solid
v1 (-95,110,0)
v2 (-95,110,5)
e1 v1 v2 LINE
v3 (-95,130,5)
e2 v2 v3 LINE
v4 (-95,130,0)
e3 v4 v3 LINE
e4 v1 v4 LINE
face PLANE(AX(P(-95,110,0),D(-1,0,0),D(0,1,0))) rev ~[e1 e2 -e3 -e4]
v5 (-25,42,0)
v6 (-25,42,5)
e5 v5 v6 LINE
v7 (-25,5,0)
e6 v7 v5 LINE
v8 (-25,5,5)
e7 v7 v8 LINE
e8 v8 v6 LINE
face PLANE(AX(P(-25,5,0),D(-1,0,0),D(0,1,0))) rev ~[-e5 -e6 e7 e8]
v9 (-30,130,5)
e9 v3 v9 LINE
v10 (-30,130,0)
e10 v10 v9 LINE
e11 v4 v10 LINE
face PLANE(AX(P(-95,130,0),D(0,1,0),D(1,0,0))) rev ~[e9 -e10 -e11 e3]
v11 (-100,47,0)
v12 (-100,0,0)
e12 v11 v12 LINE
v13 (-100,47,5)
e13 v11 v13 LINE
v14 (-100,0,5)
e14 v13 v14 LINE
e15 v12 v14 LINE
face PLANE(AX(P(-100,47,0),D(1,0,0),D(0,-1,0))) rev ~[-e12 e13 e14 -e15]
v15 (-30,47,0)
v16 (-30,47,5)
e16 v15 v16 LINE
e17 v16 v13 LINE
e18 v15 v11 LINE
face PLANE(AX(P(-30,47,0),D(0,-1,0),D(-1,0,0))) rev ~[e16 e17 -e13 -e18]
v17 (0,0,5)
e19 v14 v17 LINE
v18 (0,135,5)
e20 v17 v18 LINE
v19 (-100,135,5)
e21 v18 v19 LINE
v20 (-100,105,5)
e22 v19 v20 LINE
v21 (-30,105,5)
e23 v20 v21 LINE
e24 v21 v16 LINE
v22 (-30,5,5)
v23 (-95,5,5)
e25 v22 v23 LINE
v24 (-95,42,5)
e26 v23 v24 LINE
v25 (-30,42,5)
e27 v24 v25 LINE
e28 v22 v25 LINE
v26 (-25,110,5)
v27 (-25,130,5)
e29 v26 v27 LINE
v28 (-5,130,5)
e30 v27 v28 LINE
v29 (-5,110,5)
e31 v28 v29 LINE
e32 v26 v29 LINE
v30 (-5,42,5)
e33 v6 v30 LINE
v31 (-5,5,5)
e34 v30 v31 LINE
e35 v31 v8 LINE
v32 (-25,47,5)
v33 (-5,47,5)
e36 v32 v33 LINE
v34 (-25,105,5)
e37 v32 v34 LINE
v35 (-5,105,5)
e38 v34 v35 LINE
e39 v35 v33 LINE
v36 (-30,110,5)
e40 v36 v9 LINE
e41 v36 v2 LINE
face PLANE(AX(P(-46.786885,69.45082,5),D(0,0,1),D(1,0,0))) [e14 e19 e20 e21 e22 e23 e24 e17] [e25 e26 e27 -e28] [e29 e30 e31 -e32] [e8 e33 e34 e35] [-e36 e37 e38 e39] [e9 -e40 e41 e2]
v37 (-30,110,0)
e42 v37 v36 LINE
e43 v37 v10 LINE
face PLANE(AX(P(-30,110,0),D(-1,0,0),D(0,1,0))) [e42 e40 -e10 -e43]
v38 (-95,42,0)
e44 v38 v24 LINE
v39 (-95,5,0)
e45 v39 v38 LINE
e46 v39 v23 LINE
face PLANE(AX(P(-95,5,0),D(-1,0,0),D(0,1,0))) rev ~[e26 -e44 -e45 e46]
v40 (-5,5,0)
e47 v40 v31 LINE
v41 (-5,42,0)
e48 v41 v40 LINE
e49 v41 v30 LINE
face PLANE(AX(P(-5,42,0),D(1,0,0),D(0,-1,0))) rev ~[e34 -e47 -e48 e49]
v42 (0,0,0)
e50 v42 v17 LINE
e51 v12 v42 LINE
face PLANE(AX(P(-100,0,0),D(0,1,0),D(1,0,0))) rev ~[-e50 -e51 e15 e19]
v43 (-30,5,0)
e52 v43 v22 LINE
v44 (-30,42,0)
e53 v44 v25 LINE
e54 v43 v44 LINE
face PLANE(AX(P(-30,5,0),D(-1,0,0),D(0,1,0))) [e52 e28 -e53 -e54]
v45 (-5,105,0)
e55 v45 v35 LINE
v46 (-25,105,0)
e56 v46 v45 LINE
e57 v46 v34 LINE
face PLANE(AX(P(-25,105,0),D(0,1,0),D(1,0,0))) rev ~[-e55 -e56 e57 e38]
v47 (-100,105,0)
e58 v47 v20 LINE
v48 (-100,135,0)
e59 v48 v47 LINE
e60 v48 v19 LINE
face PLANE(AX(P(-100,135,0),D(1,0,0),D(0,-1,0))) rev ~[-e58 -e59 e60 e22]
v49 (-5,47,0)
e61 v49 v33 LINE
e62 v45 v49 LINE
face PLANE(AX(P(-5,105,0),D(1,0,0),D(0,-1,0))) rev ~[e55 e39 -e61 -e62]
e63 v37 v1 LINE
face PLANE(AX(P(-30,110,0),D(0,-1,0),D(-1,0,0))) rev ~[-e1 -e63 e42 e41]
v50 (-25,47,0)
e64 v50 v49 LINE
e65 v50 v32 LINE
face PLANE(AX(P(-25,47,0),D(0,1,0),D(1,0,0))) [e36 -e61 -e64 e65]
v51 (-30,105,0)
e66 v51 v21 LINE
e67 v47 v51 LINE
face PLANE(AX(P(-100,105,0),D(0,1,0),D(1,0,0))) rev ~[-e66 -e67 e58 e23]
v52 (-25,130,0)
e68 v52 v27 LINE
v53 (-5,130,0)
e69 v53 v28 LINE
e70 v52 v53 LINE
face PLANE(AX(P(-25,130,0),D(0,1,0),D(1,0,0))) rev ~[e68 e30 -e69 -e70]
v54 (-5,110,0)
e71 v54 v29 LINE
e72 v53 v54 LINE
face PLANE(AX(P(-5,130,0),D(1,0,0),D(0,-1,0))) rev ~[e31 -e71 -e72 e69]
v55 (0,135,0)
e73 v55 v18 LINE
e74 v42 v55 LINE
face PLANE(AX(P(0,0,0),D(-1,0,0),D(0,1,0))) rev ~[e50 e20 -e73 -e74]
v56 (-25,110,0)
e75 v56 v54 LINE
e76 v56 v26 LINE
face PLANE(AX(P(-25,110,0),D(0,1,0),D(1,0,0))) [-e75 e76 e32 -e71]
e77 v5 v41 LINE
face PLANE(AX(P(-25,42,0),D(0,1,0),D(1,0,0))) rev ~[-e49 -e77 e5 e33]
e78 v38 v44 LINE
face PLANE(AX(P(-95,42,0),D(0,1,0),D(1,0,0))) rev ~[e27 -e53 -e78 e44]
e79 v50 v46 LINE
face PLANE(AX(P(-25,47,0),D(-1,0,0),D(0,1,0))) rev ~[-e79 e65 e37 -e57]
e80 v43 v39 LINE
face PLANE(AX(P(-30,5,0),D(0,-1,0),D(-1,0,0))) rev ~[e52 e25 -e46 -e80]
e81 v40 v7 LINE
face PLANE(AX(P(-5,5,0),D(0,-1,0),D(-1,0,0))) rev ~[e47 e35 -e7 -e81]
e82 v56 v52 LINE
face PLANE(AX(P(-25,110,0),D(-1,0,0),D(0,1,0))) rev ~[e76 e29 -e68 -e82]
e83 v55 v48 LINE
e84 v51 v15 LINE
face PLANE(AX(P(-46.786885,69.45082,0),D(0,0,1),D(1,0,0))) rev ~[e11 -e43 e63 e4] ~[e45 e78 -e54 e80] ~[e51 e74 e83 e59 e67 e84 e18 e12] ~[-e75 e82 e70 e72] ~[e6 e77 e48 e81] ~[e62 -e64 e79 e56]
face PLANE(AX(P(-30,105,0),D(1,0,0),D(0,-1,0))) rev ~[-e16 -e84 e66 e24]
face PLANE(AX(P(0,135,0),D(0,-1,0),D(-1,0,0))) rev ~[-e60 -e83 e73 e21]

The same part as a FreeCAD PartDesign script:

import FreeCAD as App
import Part
import Sketcher

doc = App.newDocument("Part")
params = doc.addObject("Spreadsheet::Sheet", "Params")
for row, (alias, value) in enumerate([
    ("sketch1_width", "100 mm"),
    ("sketch1_width2", "70 mm"),
    ("sketch1_width3", "65 mm"),
    ("sketch1_width4", "20 mm"),
    ("sketch1_height", "135 mm"),
    ("pad1_length", "5 mm"),
], start=1):
    params.set(f"A{row}", alias)
    params.set(f"B{row}", "=" + value)
    params.setAlias(f"B{row}", alias)

body = doc.addObject("PartDesign::Body", "Body")

# Sketch on XY plane
sketch1 = body.newObject("Sketcher::SketchObject", "Sketch")
sketch1.AttachmentSupport = (doc.getObject("XY_Plane"), [""])
sketch1.MapMode = "FlatFace"
sketch1.addGeometry([
    Part.LineSegment(App.Vector(-100, 0, 0), App.Vector(0, 0, 0)),  # 0
    Part.LineSegment(App.Vector(0, 0, 0), App.Vector(0, 135, 0)),  # 1
    Part.LineSegment(App.Vector(0, 135, 0), App.Vector(-100, 135, 0)),  # 2
    Part.LineSegment(App.Vector(-100, 135, 0), App.Vector(-100, 105, 0)),  # 3
    Part.LineSegment(App.Vector(-100, 105, 0), App.Vector(-30, 105, 0)),  # 4
    Part.LineSegment(App.Vector(-30, 105, 0), App.Vector(-30, 47, 0)),  # 5
    Part.LineSegment(App.Vector(-30, 47, 0), App.Vector(-100, 47, 0)),  # 6
    Part.LineSegment(App.Vector(-100, 47, 0), App.Vector(-100, 0, 0)),  # 7
    Part.LineSegment(App.Vector(-30, 110, 0), App.Vector(-95, 110, 0)),  # 8
    Part.LineSegment(App.Vector(-95, 110, 0), App.Vector(-95, 130, 0)),  # 9
    Part.LineSegment(App.Vector(-95, 130, 0), App.Vector(-30, 130, 0)),  # 10
    Part.LineSegment(App.Vector(-30, 130, 0), App.Vector(-30, 110, 0)),  # 11
    Part.LineSegment(App.Vector(-25, 130, 0), App.Vector(-5, 130, 0)),  # 12
    Part.LineSegment(App.Vector(-5, 130, 0), App.Vector(-5, 110, 0)),  # 13
    Part.LineSegment(App.Vector(-5, 110, 0), App.Vector(-25, 110, 0)),  # 14
    Part.LineSegment(App.Vector(-25, 110, 0), App.Vector(-25, 130, 0)),  # 15
    Part.LineSegment(App.Vector(-5, 105, 0), App.Vector(-5, 47, 0)),  # 16
    Part.LineSegment(App.Vector(-5, 47, 0), App.Vector(-25, 47, 0)),  # 17
    Part.LineSegment(App.Vector(-25, 47, 0), App.Vector(-25, 105, 0)),  # 18
    Part.LineSegment(App.Vector(-25, 105, 0), App.Vector(-5, 105, 0)),  # 19
    Part.LineSegment(App.Vector(-5, 42, 0), App.Vector(-5, 5, 0)),  # 20
    Part.LineSegment(App.Vector(-5, 5, 0), App.Vector(-25, 5, 0)),  # 21
    Part.LineSegment(App.Vector(-25, 5, 0), App.Vector(-25, 42, 0)),  # 22
    Part.LineSegment(App.Vector(-25, 42, 0), App.Vector(-5, 42, 0)),  # 23
    Part.LineSegment(App.Vector(-30, 5, 0), App.Vector(-95, 5, 0)),  # 24
    Part.LineSegment(App.Vector(-95, 5, 0), App.Vector(-95, 42, 0)),  # 25
    Part.LineSegment(App.Vector(-95, 42, 0), App.Vector(-30, 42, 0)),  # 26
    Part.LineSegment(App.Vector(-30, 42, 0), App.Vector(-30, 5, 0)),  # 27
], False)
sketch1.addConstraint([
    Sketcher.Constraint("Coincident", 0, 2, 1, 1),
    Sketcher.Constraint("Coincident", 1, 2, 2, 1),
    Sketcher.Constraint("Coincident", 2, 2, 3, 1),
    Sketcher.Constraint("Coincident", 3, 2, 4, 1),
    Sketcher.Constraint("Coincident", 4, 2, 5, 1),
    Sketcher.Constraint("Coincident", 5, 2, 6, 1),
    Sketcher.Constraint("Coincident", 6, 2, 7, 1),
    Sketcher.Constraint("Coincident", 7, 2, 0, 1),
    Sketcher.Constraint("Coincident", 8, 2, 9, 1),
    Sketcher.Constraint("Coincident", 9, 2, 10, 1),
    Sketcher.Constraint("Coincident", 10, 2, 11, 1),
    Sketcher.Constraint("Coincident", 11, 2, 8, 1),
    Sketcher.Constraint("Coincident", 12, 2, 13, 1),
    Sketcher.Constraint("Coincident", 13, 2, 14, 1),
    Sketcher.Constraint("Coincident", 14, 2, 15, 1),
    Sketcher.Constraint("Coincident", 15, 2, 12, 1),
    Sketcher.Constraint("Coincident", 16, 2, 17, 1),
    Sketcher.Constraint("Coincident", 17, 2, 18, 1),
    Sketcher.Constraint("Coincident", 18, 2, 19, 1),
    Sketcher.Constraint("Coincident", 19, 2, 16, 1),
    Sketcher.Constraint("Coincident", 20, 2, 21, 1),
    Sketcher.Constraint("Coincident", 21, 2, 22, 1),
    Sketcher.Constraint("Coincident", 22, 2, 23, 1),
    Sketcher.Constraint("Coincident", 23, 2, 20, 1),
    Sketcher.Constraint("Coincident", 24, 2, 25, 1),
    Sketcher.Constraint("Coincident", 25, 2, 26, 1),
    Sketcher.Constraint("Coincident", 26, 2, 27, 1),
    Sketcher.Constraint("Coincident", 27, 2, 24, 1),
    Sketcher.Constraint("Horizontal", 0),
    Sketcher.Constraint("Vertical", 1),
    Sketcher.Constraint("Horizontal", 2),
    Sketcher.Constraint("Vertical", 3),
    Sketcher.Constraint("Horizontal", 4),
    Sketcher.Constraint("Vertical", 5),
    Sketcher.Constraint("Horizontal", 6),
    Sketcher.Constraint("Vertical", 7),
    Sketcher.Constraint("Horizontal", 8),
    Sketcher.Constraint("Vertical", 9),
    Sketcher.Constraint("Horizontal", 10),
    Sketcher.Constraint("Vertical", 11),
    Sketcher.Constraint("Horizontal", 12),
    Sketcher.Constraint("Vertical", 13),
    Sketcher.Constraint("Horizontal", 14),
    Sketcher.Constraint("Vertical", 15),
    Sketcher.Constraint("Vertical", 16),
    Sketcher.Constraint("Horizontal", 17),
    Sketcher.Constraint("Vertical", 18),
    Sketcher.Constraint("Horizontal", 19),
    Sketcher.Constraint("Vertical", 20),
    Sketcher.Constraint("Horizontal", 21),
    Sketcher.Constraint("Vertical", 22),
    Sketcher.Constraint("Horizontal", 23),
    Sketcher.Constraint("Horizontal", 24),
    Sketcher.Constraint("Vertical", 25),
    Sketcher.Constraint("Horizontal", 26),
    Sketcher.Constraint("Vertical", 27),
    Sketcher.Constraint("Coincident", 0, 2, -1, 1),
    Sketcher.Constraint("Horizontal", 10, 2, 12, 2),
    Sketcher.Constraint("Horizontal", 11, 2, 13, 2),
    Sketcher.Constraint("Horizontal", 6, 2, 16, 2),
    Sketcher.Constraint("Horizontal", 4, 2, 18, 2),
    Sketcher.Constraint("Horizontal", 21, 2, 24, 2),
    Sketcher.Constraint("Horizontal", 23, 2, 25, 2),
    Sketcher.Constraint("Vertical", 3, 2, 6, 2),
    Sketcher.Constraint("Vertical", 5, 2, 10, 2),
    Sketcher.Constraint("Vertical", 13, 2, 16, 2),
    Sketcher.Constraint("Vertical", 15, 2, 17, 2),
    Sketcher.Constraint("Vertical", 19, 2, 20, 2),
    Sketcher.Constraint("Vertical", 18, 2, 21, 2),
    Sketcher.Constraint("Vertical", 9, 2, 24, 2),
    Sketcher.Constraint("Vertical", 11, 2, 26, 2),
    Sketcher.Constraint("Equal", 23, 9),
    Sketcher.Constraint("DistanceX", 0, 1, 0, 2, 100.0),
    Sketcher.Constraint("DistanceX", 4, 1, 4, 2, 70.0),
    Sketcher.Constraint("DistanceX", 8, 2, 8, 1, 65.0),
    Sketcher.Constraint("DistanceX", 12, 1, 12, 2, 20.0),
    Sketcher.Constraint("DistanceY", 1, 1, 1, 2, 135.0),
    Sketcher.Constraint("DistanceY", 3, 2, 3, 1, 30.0),
    Sketcher.Constraint("DistanceY", 5, 2, 5, 1, 58.0),
    Sketcher.Constraint("DistanceY", 20, 2, 20, 1, 37.0),
    Sketcher.Constraint("DistanceY", -1, 1, 8, 2, 110.0),
    Sketcher.Constraint("DistanceX", 12, 2, -1, 1, 5.0),
    Sketcher.Constraint("DistanceY", -1, 1, 20, 2, 5.0),
])
sketch1.setExpression("Constraints[72]", "Params.sketch1_width")
sketch1.setExpression("Constraints[73]", "Params.sketch1_width2")
sketch1.setExpression("Constraints[74]", "Params.sketch1_width3")
sketch1.setExpression("Constraints[75]", "Params.sketch1_width4")
sketch1.setExpression("Constraints[76]", "Params.sketch1_height")
pad1 = body.newObject("PartDesign::Pad", "Pad")
pad1.Profile = sketch1
pad1.setExpression("Length", "Params.pad1_length")

doc.recompute()
